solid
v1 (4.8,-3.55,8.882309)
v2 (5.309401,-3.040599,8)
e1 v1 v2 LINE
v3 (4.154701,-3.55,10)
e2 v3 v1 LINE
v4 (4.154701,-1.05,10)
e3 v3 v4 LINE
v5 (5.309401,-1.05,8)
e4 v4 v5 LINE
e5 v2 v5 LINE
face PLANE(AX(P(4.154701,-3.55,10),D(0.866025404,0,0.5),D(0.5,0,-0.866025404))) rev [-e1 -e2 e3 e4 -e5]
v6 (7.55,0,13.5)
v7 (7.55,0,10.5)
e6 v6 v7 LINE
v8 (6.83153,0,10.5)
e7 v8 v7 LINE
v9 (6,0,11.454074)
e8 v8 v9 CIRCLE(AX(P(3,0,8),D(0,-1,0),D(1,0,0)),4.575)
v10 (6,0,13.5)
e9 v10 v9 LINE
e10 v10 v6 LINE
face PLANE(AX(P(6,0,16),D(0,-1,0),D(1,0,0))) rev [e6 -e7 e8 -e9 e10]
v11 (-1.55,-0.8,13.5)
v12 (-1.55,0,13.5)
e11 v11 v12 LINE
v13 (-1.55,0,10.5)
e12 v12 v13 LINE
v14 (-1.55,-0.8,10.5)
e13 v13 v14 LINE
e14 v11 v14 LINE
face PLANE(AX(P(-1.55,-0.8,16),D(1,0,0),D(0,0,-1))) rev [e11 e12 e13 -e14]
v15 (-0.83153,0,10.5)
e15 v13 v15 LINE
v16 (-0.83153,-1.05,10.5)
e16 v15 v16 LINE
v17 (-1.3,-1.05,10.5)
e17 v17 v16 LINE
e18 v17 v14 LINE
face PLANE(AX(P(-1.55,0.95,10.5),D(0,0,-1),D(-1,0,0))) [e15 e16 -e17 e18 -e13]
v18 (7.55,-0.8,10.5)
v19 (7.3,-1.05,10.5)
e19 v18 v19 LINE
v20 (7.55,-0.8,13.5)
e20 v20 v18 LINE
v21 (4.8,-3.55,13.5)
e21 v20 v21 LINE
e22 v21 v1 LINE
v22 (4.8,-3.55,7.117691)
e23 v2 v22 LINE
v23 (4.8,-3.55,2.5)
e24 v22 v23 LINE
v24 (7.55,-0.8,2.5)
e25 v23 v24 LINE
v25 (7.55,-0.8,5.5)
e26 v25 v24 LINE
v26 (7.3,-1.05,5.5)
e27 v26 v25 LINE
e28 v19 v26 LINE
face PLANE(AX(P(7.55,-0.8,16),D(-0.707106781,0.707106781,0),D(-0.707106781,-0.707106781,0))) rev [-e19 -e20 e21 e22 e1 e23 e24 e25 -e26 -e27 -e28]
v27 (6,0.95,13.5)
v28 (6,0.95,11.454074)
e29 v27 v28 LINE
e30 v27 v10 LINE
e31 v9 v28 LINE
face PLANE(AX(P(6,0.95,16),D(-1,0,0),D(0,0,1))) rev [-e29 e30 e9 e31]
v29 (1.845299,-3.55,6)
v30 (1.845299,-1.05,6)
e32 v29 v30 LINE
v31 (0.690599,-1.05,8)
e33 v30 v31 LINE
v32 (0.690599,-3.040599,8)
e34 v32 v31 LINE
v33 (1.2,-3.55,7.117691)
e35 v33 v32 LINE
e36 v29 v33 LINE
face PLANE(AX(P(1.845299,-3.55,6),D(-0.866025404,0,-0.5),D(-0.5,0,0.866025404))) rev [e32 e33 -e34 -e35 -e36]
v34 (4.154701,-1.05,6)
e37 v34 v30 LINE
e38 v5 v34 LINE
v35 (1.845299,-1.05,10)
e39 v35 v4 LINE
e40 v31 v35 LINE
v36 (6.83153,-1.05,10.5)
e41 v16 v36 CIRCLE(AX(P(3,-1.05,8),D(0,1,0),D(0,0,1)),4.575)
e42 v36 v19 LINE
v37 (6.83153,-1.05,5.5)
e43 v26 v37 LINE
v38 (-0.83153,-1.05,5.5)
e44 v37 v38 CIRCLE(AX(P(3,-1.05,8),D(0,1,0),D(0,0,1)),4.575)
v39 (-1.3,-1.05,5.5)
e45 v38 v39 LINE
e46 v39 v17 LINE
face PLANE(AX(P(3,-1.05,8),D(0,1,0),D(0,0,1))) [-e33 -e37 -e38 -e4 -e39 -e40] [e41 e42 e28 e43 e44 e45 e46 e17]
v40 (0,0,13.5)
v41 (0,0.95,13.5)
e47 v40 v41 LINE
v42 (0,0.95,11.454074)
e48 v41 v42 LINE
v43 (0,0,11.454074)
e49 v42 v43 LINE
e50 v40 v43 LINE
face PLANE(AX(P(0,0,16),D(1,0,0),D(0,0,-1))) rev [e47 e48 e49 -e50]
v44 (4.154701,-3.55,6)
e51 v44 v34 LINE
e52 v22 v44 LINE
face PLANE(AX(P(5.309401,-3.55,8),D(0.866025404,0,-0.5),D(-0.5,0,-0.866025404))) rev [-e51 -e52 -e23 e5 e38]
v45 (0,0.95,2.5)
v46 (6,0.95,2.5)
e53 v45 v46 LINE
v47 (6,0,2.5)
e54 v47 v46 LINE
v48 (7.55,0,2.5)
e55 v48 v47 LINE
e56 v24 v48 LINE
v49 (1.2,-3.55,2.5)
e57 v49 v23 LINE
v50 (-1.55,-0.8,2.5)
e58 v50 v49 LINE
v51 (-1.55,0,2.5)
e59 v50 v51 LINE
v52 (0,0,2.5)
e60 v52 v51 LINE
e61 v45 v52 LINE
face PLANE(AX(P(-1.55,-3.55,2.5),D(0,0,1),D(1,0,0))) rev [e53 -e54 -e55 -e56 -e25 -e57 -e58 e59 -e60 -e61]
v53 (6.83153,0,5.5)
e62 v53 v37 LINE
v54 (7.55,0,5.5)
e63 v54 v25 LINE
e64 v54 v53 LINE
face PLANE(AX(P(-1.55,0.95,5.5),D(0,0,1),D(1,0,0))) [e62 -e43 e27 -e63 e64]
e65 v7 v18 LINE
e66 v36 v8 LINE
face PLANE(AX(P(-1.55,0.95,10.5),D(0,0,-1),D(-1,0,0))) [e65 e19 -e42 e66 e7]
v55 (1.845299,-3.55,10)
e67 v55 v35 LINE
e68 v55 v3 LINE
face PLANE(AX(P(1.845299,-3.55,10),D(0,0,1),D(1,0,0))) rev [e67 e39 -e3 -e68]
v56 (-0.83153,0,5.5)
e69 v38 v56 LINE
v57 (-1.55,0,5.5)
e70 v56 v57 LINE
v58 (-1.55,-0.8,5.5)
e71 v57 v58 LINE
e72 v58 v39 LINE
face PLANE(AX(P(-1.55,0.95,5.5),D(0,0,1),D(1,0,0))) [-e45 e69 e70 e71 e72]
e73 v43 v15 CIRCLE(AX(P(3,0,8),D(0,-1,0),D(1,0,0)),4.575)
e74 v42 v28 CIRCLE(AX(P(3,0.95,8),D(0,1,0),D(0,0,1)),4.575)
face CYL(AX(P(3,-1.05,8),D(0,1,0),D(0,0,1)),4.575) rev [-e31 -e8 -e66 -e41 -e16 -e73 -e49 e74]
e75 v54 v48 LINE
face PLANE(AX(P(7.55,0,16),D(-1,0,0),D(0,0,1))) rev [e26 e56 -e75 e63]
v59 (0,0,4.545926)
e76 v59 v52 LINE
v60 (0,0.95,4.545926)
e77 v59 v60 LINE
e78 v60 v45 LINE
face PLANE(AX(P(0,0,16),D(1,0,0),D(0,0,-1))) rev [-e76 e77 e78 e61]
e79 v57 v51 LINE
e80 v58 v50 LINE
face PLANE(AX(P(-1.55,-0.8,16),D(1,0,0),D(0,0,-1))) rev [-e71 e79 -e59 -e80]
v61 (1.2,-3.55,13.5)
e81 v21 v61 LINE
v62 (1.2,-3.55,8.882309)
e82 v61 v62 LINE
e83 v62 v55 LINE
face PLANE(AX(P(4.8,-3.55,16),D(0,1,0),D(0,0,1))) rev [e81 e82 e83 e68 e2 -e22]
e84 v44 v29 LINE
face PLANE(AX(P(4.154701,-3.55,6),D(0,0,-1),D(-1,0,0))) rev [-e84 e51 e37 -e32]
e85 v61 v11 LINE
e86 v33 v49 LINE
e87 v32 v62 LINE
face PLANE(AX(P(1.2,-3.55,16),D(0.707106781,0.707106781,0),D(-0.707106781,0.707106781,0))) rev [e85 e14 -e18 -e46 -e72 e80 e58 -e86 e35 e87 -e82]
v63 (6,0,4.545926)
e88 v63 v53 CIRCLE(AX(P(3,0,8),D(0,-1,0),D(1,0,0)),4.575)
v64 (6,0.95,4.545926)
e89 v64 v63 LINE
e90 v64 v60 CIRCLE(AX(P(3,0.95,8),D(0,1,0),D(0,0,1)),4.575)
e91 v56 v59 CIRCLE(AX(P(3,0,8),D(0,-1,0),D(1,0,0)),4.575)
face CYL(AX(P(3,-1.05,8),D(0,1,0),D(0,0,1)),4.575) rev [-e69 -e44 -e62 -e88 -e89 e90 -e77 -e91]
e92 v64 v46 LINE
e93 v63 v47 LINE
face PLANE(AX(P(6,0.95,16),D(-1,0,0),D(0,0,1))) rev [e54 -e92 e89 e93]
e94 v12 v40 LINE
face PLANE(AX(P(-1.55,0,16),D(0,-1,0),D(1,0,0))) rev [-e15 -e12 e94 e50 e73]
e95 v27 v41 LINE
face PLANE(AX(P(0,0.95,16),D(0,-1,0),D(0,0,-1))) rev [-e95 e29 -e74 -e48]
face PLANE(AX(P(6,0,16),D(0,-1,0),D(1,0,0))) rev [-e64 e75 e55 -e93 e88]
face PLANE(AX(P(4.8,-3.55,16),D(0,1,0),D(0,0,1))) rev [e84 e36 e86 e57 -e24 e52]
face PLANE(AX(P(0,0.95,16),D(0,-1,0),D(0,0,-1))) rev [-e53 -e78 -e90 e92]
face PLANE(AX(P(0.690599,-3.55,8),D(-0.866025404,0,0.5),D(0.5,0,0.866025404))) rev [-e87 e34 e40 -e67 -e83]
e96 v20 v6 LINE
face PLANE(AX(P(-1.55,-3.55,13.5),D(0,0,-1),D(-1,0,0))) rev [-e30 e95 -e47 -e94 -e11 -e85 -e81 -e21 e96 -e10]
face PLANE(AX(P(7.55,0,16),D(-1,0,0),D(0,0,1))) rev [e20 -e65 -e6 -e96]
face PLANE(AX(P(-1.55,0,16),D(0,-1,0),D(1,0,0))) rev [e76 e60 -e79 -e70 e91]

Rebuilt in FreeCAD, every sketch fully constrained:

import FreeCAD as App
import Part
import Sketcher

V = App.Vector
Q = App.Units.Quantity


def add_polygon(sketch, points):
    """Adds a closed chain of lines whose ends are joined by coincident constraints."""
    first, n = sketch.GeometryCount, len(points)
    for a, b in zip(points, points[1:] + points[:1]):
        sketch.addGeometry(Part.LineSegment(App.Vector(*a, 0), App.Vector(*b, 0)), False)
    for i in range(n):
        sketch.addConstraint(Sketcher.Constraint("Coincident", first + i, 2, first + (i + 1) % n, 1))

doc = App.newDocument("Part")
body = doc.addObject("PartDesign::Body", "Body")

sketch1 = body.newObject("Sketcher::SketchObject", "Sketch")
sketch1.AttachmentSupport = (doc.getObject("XY_Plane"), [""])
sketch1.MapMode = "FlatFace"
add_polygon(sketch1, [(0, 0.9), (0, 0), (-1.6, 0), (-1.6, -0.8), (1.2, -3.5), (4.8, -3.5), (7.5, -0.8), (7.5, 0), (6, 0), (6, 0.9)])
sketch1.addConstraint(Sketcher.Constraint("Vertical", 0))
sketch1.addConstraint(Sketcher.Constraint("Horizontal", 1))
sketch1.addConstraint(Sketcher.Constraint("Vertical", 2))
sketch1.addConstraint(Sketcher.Constraint("Horizontal", 4))
sketch1.addConstraint(Sketcher.Constraint("Vertical", 6))
sketch1.addConstraint(Sketcher.Constraint("Horizontal", 7))
sketch1.addConstraint(Sketcher.Constraint("Vertical", 8))
sketch1.addConstraint(Sketcher.Constraint("Horizontal", 9))
sketch1.addConstraint(Sketcher.Constraint("Coincident", 0, 2, -1, 1))
sketch1.addConstraint(Sketcher.Constraint("PointOnObject", 6, 2, -1))
sketch1.addConstraint(Sketcher.Constraint("Perpendicular", 3, 5))
sketch1.addConstraint(Sketcher.Constraint("Horizontal", 2, 2, 5, 2))
sketch1.addConstraint(Sketcher.Constraint("Equal", 1, 7))
sketch1.addConstraint(Sketcher.Constraint("Equal", 3, 5))
sketch1.addConstraint(Sketcher.Constraint("DistanceX", 9, 2, 9, 1, 6.0))
sketch1.addConstraint(Sketcher.Constraint("DistanceX", 4, 1, 4, 2, 3.6))
sketch1.addConstraint(Sketcher.Constraint("DistanceY", 2, 2, 2, 1, 0.8))
sketch1.addConstraint(Sketcher.Constraint("DistanceX", 1, 2, 1, 1, 1.55))
sketch1.addConstraint(Sketcher.Constraint("DistanceY", 0, 2, 0, 1, 0.95))
pad1 = body.newObject("PartDesign::Pad", "Pad")
pad1.Profile = sketch1
pad1.Length = 16

sketch2 = body.newObject("Sketcher::SketchObject", "Sketch001")
sketch2.AttachmentSupport = (doc.getObject("XZ_Plane"), [""])
sketch2.MapMode = "FlatFace"
sketch2.AttachmentOffset = App.Placement(V(0, 0, -0.95), App.Rotation())
sketch2.addGeometry(Part.Circle(V(3, 8, 0), V(0, 0, 1), 4.6), False)
sketch2.addConstraint(Sketcher.Constraint("Diameter", 0, 9.15))
sketch2.addConstraint(Sketcher.Constraint("DistanceX", -1, 1, 0, 3, 3.0))
sketch2.addConstraint(Sketcher.Constraint("DistanceY", -1, 1, 0, 3, 8.0))
pocket1 = body.newObject("PartDesign::Pocket", "Pocket")
pocket1.Profile = sketch2
pocket1.Length = 2
pocket1.Reversed = True

sketch3 = body.newObject("Sketcher::SketchObject", "Sketch002")
sketch3.AttachmentSupport = (doc.getObject("XZ_Plane"), [""])
sketch3.MapMode = "FlatFace"
sketch3.AttachmentOffset = App.Placement(V(0, 0, 1.05), App.Rotation())
add_polygon(sketch3, [(5.3, 8), (4.2, 6), (1.8, 6), (0.7, 8), (1.8, 10), (4.2, 10)])
sketch3.addConstraint(Sketcher.Constraint("Horizontal", 1))
sketch3.addConstraint(Sketcher.Constraint("Horizontal", 4))
sketch3.addConstraint(Sketcher.Constraint("Parallel", 0, 3))
sketch3.addConstraint(Sketcher.Constraint("Parallel", 2, 5))
sketch3.addConstraint(Sketcher.Constraint("Horizontal", 2, 2, 5, 2))
sketch3.addConstraint(Sketcher.Constraint("Vertical", 1, 2, 3, 2))
sketch3.addConstraint(Sketcher.Constraint("Vertical", 0, 2, 4, 2))
sketch3.addConstraint(Sketcher.Constraint("Angle", 0, Q("-120 deg")))
sketch3.addConstraint(Sketcher.Constraint("DistanceY", -1, 1, 0, 2, 6.0))
sketch3.addConstraint(Sketcher.Constraint("DistanceY", -1, 1, 2, 2, 8.0))
sketch3.addConstraint(Sketcher.Constraint("DistanceX", 1, 2, 1, 1, 2.309401))
sketch3.addConstraint(Sketcher.Constraint("DistanceX", -1, 1, 0, 2, 4.154701))
pocket2 = body.newObject("PartDesign::Pocket", "Pocket001")
pocket2.Profile = sketch3
pocket2.Type = "ThroughAll"
pocket2.Reversed = True

sketch4 = body.newObject("Sketcher::SketchObject", "Sketch003")
sketch4.AttachmentSupport = (doc.getObject("XZ_Plane"), [""])
sketch4.MapMode = "FlatFace"
sketch4.AttachmentOffset = App.Placement(V(0, 0, 1.05), App.Rotation())
add_polygon(sketch4, [(-2, 6), (-2, 10), (8, 10), (8, 6)])
sketch4.addConstraint(Sketcher.Constraint("Vertical", 0))
sketch4.addConstraint(Sketcher.Constraint("Horizontal", 1))
sketch4.addConstraint(Sketcher.Constraint("Vertical", 2))
sketch4.addConstraint(Sketcher.Constraint("Horizontal", 3))
sketch4.addConstraint(Sketcher.Constraint("DistanceY", 0, 1, 0, 2, 5.0))
sketch4.addConstraint(Sketcher.Constraint("DistanceX", 1, 1, 1, 2, 9.1))
sketch4.addConstraint(Sketcher.Constraint("DistanceY", -1, 1, 0, 2, 10.5))
sketch4.addConstraint(Sketcher.Constraint("DistanceX", 0, 2, -1, 1, 1.55))
pocket3 = body.newObject("PartDesign::Pocket", "Pocket002")
pocket3.Profile = sketch4
pocket3.Type = "ThroughAll"

sketch5 = body.newObject("Sketcher::SketchObject", "Sketch004")
sketch5.AttachmentSupport = (doc.getObject("XZ_Plane"), [""])
sketch5.MapMode = "FlatFace"
sketch5.AttachmentOffset = App.Placement(V(0, 0, -0.95), App.Rotation())
add_polygon(sketch5, [(-1.6, 0), (-1.6, 2.5), (7.5, 2.5), (7.5, 0)])
add_polygon(sketch5, [(-1.6, 13.5), (-1.6, 16), (7.5, 16), (7.5, 13.5)])
sketch5.addConstraint(Sketcher.Constraint("Vertical", 0))
sketch5.addConstraint(Sketcher.Constraint("Horizontal", 1))
sketch5.addConstraint(Sketcher.Constraint("Vertical", 2))
sketch5.addConstraint(Sketcher.Constraint("Horizontal", 3))
sketch5.addConstraint(Sketcher.Constraint("Vertical", 4))
sketch5.addConstraint(Sketcher.Constraint("Horizontal", 5))
sketch5.addConstraint(Sketcher.Constraint("Vertical", 6))
sketch5.addConstraint(Sketcher.Constraint("Horizontal", 7))
sketch5.addConstraint(Sketcher.Constraint("PointOnObject", 2, 2, -1))
sketch5.addConstraint(Sketcher.Constraint("Vertical", 3, 2, 4, 2))
sketch5.addConstraint(Sketcher.Constraint("Vertical", 2, 2, 5, 2))
sketch5.addConstraint(Sketcher.Constraint("Equal", 2, 4))
sketch5.addConstraint(Sketcher.Constraint("DistanceX", 1, 1, 1, 2, 9.1))
sketch5.addConstraint(Sketcher.Constraint("DistanceY", 0, 1, 0, 2, 2.5))
sketch5.addConstraint(Sketcher.Constraint("DistanceY", -1, 1, 4, 2, 16.0))
sketch5.addConstraint(Sketcher.Constraint("DistanceX", 0, 2, -1, 1, 1.55))
pocket4 = body.newObject("PartDesign::Pocket", "Pocket003")
pocket4.Profile = sketch5
pocket4.Type = "ThroughAll"
pocket4.Reversed = True

doc.recompute()
